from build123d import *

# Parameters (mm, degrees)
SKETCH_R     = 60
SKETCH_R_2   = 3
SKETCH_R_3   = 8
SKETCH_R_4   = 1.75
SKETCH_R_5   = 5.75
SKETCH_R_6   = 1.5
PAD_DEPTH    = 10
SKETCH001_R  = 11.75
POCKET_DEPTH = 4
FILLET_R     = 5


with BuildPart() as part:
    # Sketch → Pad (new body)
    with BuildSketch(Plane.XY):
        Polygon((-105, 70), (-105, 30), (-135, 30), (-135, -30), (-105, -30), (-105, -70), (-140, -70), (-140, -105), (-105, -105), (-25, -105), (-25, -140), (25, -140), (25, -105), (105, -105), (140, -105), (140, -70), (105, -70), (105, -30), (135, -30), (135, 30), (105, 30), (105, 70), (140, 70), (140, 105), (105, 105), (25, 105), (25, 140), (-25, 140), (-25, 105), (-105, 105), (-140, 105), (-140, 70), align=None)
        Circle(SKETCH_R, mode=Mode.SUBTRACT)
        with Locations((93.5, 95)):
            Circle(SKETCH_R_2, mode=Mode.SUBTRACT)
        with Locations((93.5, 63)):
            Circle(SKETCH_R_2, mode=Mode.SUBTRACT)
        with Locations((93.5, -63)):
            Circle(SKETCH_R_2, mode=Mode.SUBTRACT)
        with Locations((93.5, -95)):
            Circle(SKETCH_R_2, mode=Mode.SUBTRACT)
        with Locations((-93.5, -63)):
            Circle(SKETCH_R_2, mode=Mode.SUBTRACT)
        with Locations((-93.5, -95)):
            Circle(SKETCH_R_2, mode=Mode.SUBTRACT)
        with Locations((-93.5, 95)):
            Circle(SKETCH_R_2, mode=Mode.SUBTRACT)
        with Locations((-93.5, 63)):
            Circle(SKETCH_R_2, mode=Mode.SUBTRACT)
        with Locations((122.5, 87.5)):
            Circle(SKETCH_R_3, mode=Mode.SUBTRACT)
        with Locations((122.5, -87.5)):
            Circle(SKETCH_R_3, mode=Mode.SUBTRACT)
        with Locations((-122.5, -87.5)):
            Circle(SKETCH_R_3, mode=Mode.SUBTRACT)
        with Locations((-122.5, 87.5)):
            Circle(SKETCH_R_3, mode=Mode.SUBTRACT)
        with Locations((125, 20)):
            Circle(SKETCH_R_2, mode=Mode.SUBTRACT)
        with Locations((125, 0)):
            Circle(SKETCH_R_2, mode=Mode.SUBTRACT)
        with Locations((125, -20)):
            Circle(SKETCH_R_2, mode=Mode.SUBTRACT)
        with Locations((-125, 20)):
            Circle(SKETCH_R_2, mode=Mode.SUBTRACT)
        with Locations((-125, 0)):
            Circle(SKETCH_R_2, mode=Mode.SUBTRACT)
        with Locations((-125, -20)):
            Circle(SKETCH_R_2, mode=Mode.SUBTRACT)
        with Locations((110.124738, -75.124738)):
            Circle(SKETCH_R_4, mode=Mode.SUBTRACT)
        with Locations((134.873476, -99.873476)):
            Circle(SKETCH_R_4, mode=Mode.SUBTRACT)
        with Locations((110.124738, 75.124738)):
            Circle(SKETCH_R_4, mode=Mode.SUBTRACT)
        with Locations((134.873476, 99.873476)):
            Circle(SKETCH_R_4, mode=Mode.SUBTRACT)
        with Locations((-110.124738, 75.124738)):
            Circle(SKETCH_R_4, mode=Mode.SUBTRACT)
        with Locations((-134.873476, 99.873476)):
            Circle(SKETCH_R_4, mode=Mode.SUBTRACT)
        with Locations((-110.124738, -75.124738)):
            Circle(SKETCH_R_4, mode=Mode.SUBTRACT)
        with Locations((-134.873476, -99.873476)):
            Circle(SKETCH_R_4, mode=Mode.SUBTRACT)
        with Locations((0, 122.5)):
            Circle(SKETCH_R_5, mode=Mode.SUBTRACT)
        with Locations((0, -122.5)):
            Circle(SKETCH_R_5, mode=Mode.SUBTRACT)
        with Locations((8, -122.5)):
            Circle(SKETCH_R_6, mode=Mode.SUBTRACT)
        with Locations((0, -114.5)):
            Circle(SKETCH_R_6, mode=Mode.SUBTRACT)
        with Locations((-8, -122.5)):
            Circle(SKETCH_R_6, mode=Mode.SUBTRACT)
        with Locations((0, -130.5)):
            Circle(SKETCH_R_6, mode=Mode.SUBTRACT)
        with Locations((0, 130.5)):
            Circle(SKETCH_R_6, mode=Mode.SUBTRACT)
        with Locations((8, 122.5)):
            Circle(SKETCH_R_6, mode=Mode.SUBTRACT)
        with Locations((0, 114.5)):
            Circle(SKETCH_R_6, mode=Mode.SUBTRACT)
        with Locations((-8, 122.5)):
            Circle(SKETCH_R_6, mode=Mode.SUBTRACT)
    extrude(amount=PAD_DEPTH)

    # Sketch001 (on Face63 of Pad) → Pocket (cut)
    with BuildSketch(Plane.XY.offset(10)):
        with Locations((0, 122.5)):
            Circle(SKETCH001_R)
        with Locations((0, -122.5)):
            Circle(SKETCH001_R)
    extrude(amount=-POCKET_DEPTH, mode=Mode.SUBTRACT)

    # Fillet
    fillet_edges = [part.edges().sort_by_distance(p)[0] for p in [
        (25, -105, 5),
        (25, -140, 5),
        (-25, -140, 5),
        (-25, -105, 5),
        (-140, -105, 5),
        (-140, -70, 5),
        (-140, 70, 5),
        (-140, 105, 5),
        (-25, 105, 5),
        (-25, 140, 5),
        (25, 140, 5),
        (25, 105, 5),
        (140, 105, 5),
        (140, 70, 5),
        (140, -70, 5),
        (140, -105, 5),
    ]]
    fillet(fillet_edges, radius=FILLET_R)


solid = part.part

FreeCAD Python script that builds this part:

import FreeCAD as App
import Part
import Sketcher
from FreeCAD import Vector


def edges_at(feature, points):
    """Names of the edges that pass closest to the given points."""
    edges = feature.Shape.Edges
    near = lambda p: min(range(len(edges)), key=lambda i: edges[i].distToShape(Part.Vertex(*p))[0])
    return sorted({f"Edge{near(p) + 1}" for p in points})


def add_polygon(sketch, points):
    """Adds a closed chain of lines whose ends are joined by coincident constraints."""
    first, n = sketch.GeometryCount, len(points)
    for a, b in zip(points, points[1:] + points[:1]):
        sketch.addGeometry(Part.LineSegment(App.Vector(*a, 0), App.Vector(*b, 0)), False)
    for i in range(n):
        sketch.addConstraint(Sketcher.Constraint("Coincident", first + i, 2, first + (i + 1) % n, 1))

doc = App.newDocument("Part")
body = doc.addObject("PartDesign::Body", "Body")

# Sketch on XY plane
sketch1 = body.newObject("Sketcher::SketchObject", "Sketch")
sketch1.AttachmentSupport = (doc.getObject("XY_Plane"), [""])
sketch1.MapMode = "FlatFace"
add_polygon(sketch1, [(-105, 70), (-105, 30), (-135, 30), (-135, -30), (-105, -30), (-105, -70), (-140, -70), (-140, -105), (-25, -105), (-25, -140), (25, -140), (25, -105), (140, -105), (140, -70), (105, -70), (105, -30), (135, -30), (135, 30), (105, 30), (105, 70), (140, 70), (140, 105), (25, 105), (25, 140), (-25, 140), (-25, 105), (-140, 105), (-140, 70)])  # lines 0-27
sketch1.addGeometry(Part.Circle(Vector(-134.9, -99.9, 0), Vector(0, 0, 1), 1.8), False)  # 28
sketch1.addGeometry(Part.Circle(Vector(-122.5, -87.5, 0), Vector(0, 0, 1), 8), False)  # 29
sketch1.addGeometry(Part.Circle(Vector(-110.1, -75.1, 0), Vector(0, 0, 1), 1.8), False)  # 30
sketch1.addGeometry(Part.Circle(Vector(-93.5, -95, 0), Vector(0, 0, 1), 3), False)  # 31
sketch1.addGeometry(Part.Circle(Vector(-8, -122.5, 0), Vector(0, 0, 1), 1.5), False)  # 32
sketch1.addGeometry(Part.Circle(Vector(-93.5, -63, 0), Vector(0, 0, 1), 3), False)  # 33
sketch1.addGeometry(Part.Circle(Vector(-125, -20, 0), Vector(0, 0, 1), 3), False)  # 34
sketch1.addGeometry(Part.Circle(Vector(0, -130.5, 0), Vector(0, 0, 1), 1.5), False)  # 35
sketch1.addGeometry(Part.Circle(Vector(0, -122.5, 0), Vector(0, 0, 1), 5.8), False)  # 36
sketch1.addGeometry(Part.Circle(Vector(8, -122.5, 0), Vector(0, 0, 1), 1.5), False)  # 37
sketch1.addGeometry(Part.Circle(Vector(0, -114.5, 0), Vector(0, 0, 1), 1.5), False)  # 38
sketch1.addGeometry(Part.Circle(Vector(134.9, -99.9, 0), Vector(0, 0, 1), 1.8), False)  # 39
sketch1.addGeometry(Part.Circle(Vector(93.5, -95, 0), Vector(0, 0, 1), 3), False)  # 40
sketch1.addGeometry(Part.Circle(Vector(122.5, -87.5, 0), Vector(0, 0, 1), 8), False)  # 41
sketch1.addGeometry(Part.Circle(Vector(110.1, -75.1, 0), Vector(0, 0, 1), 1.8), False)  # 42
sketch1.addGeometry(Part.Circle(Vector(93.5, -63, 0), Vector(0, 0, 1), 3), False)  # 43
sketch1.addGeometry(Part.Circle(Vector(125, -20, 0), Vector(0, 0, 1), 3), False)  # 44
sketch1.addGeometry(Part.Circle(Vector(-125, 0, 0), Vector(0, 0, 1), 3), False)  # 45
sketch1.addGeometry(Part.Circle(Vector(-125, 20, 0), Vector(0, 0, 1), 3), False)  # 46
sketch1.addGeometry(Part.Circle(Vector(-93.5, 63, 0), Vector(0, 0, 1), 3), False)  # 47
sketch1.addGeometry(Part.Circle(Vector(-110.1, 75.1, 0), Vector(0, 0, 1), 1.8), False)  # 48
sketch1.addGeometry(Part.Circle(Vector(-122.5, 87.5, 0), Vector(0, 0, 1), 8), False)  # 49
sketch1.addGeometry(Part.Circle(Vector(-93.5, 95, 0), Vector(0, 0, 1), 3), False)  # 50
sketch1.addGeometry(Part.Circle(Vector(-134.9, 99.9, 0), Vector(0, 0, 1), 1.8), False)  # 51
sketch1.addGeometry(Part.Circle(Vector(-8, 122.5, 0), Vector(0, 0, 1), 1.5), False)  # 52
sketch1.addGeometry(Part.Circle(Vector(0, 0, 0), Vector(0, 0, 1), 60), False)  # 53
sketch1.addGeometry(Part.Circle(Vector(125, 0, 0), Vector(0, 0, 1), 3), False)  # 54
sketch1.addGeometry(Part.Circle(Vector(125, 20, 0), Vector(0, 0, 1), 3), False)  # 55
sketch1.addGeometry(Part.Circle(Vector(93.5, 63, 0), Vector(0, 0, 1), 3), False)  # 56
sketch1.addGeometry(Part.Circle(Vector(0, 114.5, 0), Vector(0, 0, 1), 1.5), False)  # 57
sketch1.addGeometry(Part.Circle(Vector(0, 122.5, 0), Vector(0, 0, 1), 5.8), False)  # 58
sketch1.addGeometry(Part.Circle(Vector(8, 122.5, 0), Vector(0, 0, 1), 1.5), False)  # 59
sketch1.addGeometry(Part.Circle(Vector(0, 130.5, 0), Vector(0, 0, 1), 1.5), False)  # 60
sketch1.addGeometry(Part.Circle(Vector(93.5, 95, 0), Vector(0, 0, 1), 3), False)  # 61
sketch1.addGeometry(Part.Circle(Vector(110.1, 75.1, 0), Vector(0, 0, 1), 1.8), False)  # 62
sketch1.addGeometry(Part.Circle(Vector(122.5, 87.5, 0), Vector(0, 0, 1), 8), False)  # 63
sketch1.addGeometry(Part.Circle(Vector(134.9, 99.9, 0), Vector(0, 0, 1), 1.8), False)  # 64
sketch1.addConstraint(Sketcher.Constraint("Vertical", 0))
sketch1.addConstraint(Sketcher.Constraint("Horizontal", 1))
sketch1.addConstraint(Sketcher.Constraint("Vertical", 2))
sketch1.addConstraint(Sketcher.Constraint("Horizontal", 3))
sketch1.addConstraint(Sketcher.Constraint("Vertical", 4))
sketch1.addConstraint(Sketcher.Constraint("Horizontal", 5))
sketch1.addConstraint(Sketcher.Constraint("Vertical", 6))
sketch1.addConstraint(Sketcher.Constraint("Horizontal", 7))
sketch1.addConstraint(Sketcher.Constraint("Vertical", 8))
sketch1.addConstraint(Sketcher.Constraint("Horizontal", 9))
sketch1.addConstraint(Sketcher.Constraint("Vertical", 10))
sketch1.addConstraint(Sketcher.Constraint("Horizontal", 11))
sketch1.addConstraint(Sketcher.Constraint("Vertical", 12))
sketch1.addConstraint(Sketcher.Constraint("Horizontal", 13))
sketch1.addConstraint(Sketcher.Constraint("Vertical", 14))
sketch1.addConstraint(Sketcher.Constraint("Horizontal", 15))
sketch1.addConstraint(Sketcher.Constraint("Vertical", 16))
sketch1.addConstraint(Sketcher.Constraint("Horizontal", 17))
sketch1.addConstraint(Sketcher.Constraint("Vertical", 18))
sketch1.addConstraint(Sketcher.Constraint("Horizontal", 19))
sketch1.addConstraint(Sketcher.Constraint("Vertical", 20))
sketch1.addConstraint(Sketcher.Constraint("Horizontal", 21))
sketch1.addConstraint(Sketcher.Constraint("Vertical", 22))
sketch1.addConstraint(Sketcher.Constraint("Horizontal", 23))
sketch1.addConstraint(Sketcher.Constraint("Vertical", 24))
sketch1.addConstraint(Sketcher.Constraint("Horizontal", 25))
sketch1.addConstraint(Sketcher.Constraint("Vertical", 26))
sketch1.addConstraint(Sketcher.Constraint("Horizontal", 27))
sketch1.addConstraint(Sketcher.Constraint("Coincident", 53, 3, -1, 1))
sketch1.addConstraint(Sketcher.Constraint("Equal", 28, 30))
sketch1.addConstraint(Sketcher.Constraint("Equal", 31, 33))
sketch1.addConstraint(Sketcher.Constraint("Equal", 33, 34))
sketch1.addConstraint(Sketcher.Constraint("Equal", 32, 35))
sketch1.addConstraint(Sketcher.Constraint("Equal", 35, 37))
sketch1.addConstraint(Sketcher.Constraint("Equal", 37, 38))
sketch1.addConstraint(Sketcher.Constraint("Equal", 30, 39))
sketch1.addConstraint(Sketcher.Constraint("Equal", 34, 40))
sketch1.addConstraint(Sketcher.Constraint("Equal", 29, 41))
sketch1.addConstraint(Sketcher.Constraint("Equal", 39, 42))
sketch1.addConstraint(Sketcher.Constraint("Equal", 40, 43))
sketch1.addConstraint(Sketcher.Constraint("Equal", 43, 44))
sketch1.addConstraint(Sketcher.Constraint("Equal", 44, 45))
sketch1.addConstraint(Sketcher.Constraint("Equal", 45, 46))
sketch1.addConstraint(Sketcher.Constraint("Equal", 46, 47))
sketch1.addConstraint(Sketcher.Constraint("Equal", 42, 48))
sketch1.addConstraint(Sketcher.Constraint("Equal", 41, 49))
sketch1.addConstraint(Sketcher.Constraint("Equal", 47, 50))
sketch1.addConstraint(Sketcher.Constraint("Equal", 48, 51))
sketch1.addConstraint(Sketcher.Constraint("Equal", 38, 52))
sketch1.addConstraint(Sketcher.Constraint("Equal", 50, 54))
sketch1.addConstraint(Sketcher.Constraint("Equal", 54, 55))
sketch1.addConstraint(Sketcher.Constraint("Equal", 55, 56))
sketch1.addConstraint(Sketcher.Constraint("Equal", 52, 57))
sketch1.addConstraint(Sketcher.Constraint("Equal", 36, 58))
sketch1.addConstraint(Sketcher.Constraint("Equal", 57, 59))
sketch1.addConstraint(Sketcher.Constraint("Equal", 59, 60))
sketch1.addConstraint(Sketcher.Constraint("Equal", 56, 61))
sketch1.addConstraint(Sketcher.Constraint("Equal", 51, 62))
sketch1.addConstraint(Sketcher.Constraint("Equal", 49, 63))
sketch1.addConstraint(Sketcher.Constraint("Equal", 62, 64))
sketch1.addConstraint(Sketcher.Constraint("Symmetric", 44, 3, 46, 3, -1, 1))
sketch1.addConstraint(Sketcher.Constraint("Symmetric", 43, 3, 47, 3, -1, 1))
sketch1.addConstraint(Sketcher.Constraint("Symmetric", 42, 3, 48, 3, -1, 1))
sketch1.addConstraint(Sketcher.Constraint("Symmetric", 41, 3, 49, 3, -1, 1))
sketch1.addConstraint(Sketcher.Constraint("Symmetric", 40, 3, 50, 3, -1, 1))
sketch1.addConstraint(Sketcher.Constraint("Symmetric", 39, 3, 51, 3, -1, 1))
sketch1.addConstraint(Sketcher.Constraint("Symmetric", 37, 3, 52, 3, -1, 1))
sketch1.addConstraint(Sketcher.Constraint("Symmetric", 45, 3, 54, 3, -1, 1))
sketch1.addConstraint(Sketcher.Constraint("Symmetric", 34, 3, 55, 3, -1, 1))
sketch1.addConstraint(Sketcher.Constraint("Symmetric", 33, 3, 56, 3, -1, 1))
sketch1.addConstraint(Sketcher.Constraint("Symmetric", 38, 3, 57, 3, -1, 1))
sketch1.addConstraint(Sketcher.Constraint("Symmetric", 36, 3, 58, 3, -1, 1))
sketch1.addConstraint(Sketcher.Constraint("Symmetric", 32, 3, 59, 3, -1, 1))
sketch1.addConstraint(Sketcher.Constraint("Symmetric", 35, 3, 60, 3, -1, 1))
sketch1.addConstraint(Sketcher.Constraint("Symmetric", 31, 3, 61, 3, -1, 1))
sketch1.addConstraint(Sketcher.Constraint("Symmetric", 30, 3, 62, 3, -1, 1))
sketch1.addConstraint(Sketcher.Constraint("Symmetric", 29, 3, 63, 3, -1, 1))
sketch1.addConstraint(Sketcher.Constraint("Symmetric", 28, 3, 64, 3, -1, 1))
sketch1.addConstraint(Sketcher.Constraint("Symmetric", 0, 2, 14, 2, -1, 1))
sketch1.addConstraint(Sketcher.Constraint("Symmetric", 2, 2, 16, 2, -1, 1))
sketch1.addConstraint(Sketcher.Constraint("Symmetric", 4, 2, 18, 2, -1, 1))
sketch1.addConstraint(Sketcher.Constraint("Symmetric", 6, 2, 20, 2, -1, 1))
sketch1.addConstraint(Sketcher.Constraint("Symmetric", 8, 2, 22, 2, -1, 1))
sketch1.addConstraint(Sketcher.Constraint("Symmetric", 10, 2, 24, 2, -1, 1))
sketch1.addConstraint(Sketcher.Constraint("Symmetric", 12, 2, 26, 2, -1, 1))
sketch1.addConstraint(Sketcher.Constraint("Symmetric", 32, 3, 37, 3, -2))
sketch1.addConstraint(Sketcher.Constraint("Symmetric", 28, 3, 39, 3, -2))
sketch1.addConstraint(Sketcher.Constraint("Symmetric", 31, 3, 40, 3, -2))
sketch1.addConstraint(Sketcher.Constraint("Symmetric", 29, 3, 41, 3, -2))
sketch1.addConstraint(Sketcher.Constraint("Symmetric", 30, 3, 42, 3, -2))
sketch1.addConstraint(Sketcher.Constraint("Symmetric", 33, 3, 43, 3, -2))
sketch1.addConstraint(Sketcher.Constraint("Symmetric", 34, 3, 44, 3, -2))
sketch1.addConstraint(Sketcher.Constraint("Symmetric", 7, 2, 10, 2, -2))
sketch1.addConstraint(Sketcher.Constraint("Symmetric", 5, 2, 12, 2, -2))
sketch1.addConstraint(Sketcher.Constraint("Symmetric", 3, 2, 14, 2, -2))
sketch1.addConstraint(Sketcher.Constraint("PointOnObject", 35, 3, -2))
sketch1.addConstraint(Sketcher.Constraint("PointOnObject", 36, 3, -2))
sketch1.addConstraint(Sketcher.Constraint("PointOnObject", 38, 3, -2))
sketch1.addConstraint(Sketcher.Constraint("PointOnObject", 45, 3, -1))
sketch1.addConstraint(Sketcher.Constraint("Horizontal", 32, 3, 36, 3))
sketch1.addConstraint(Sketcher.Constraint("Vertical", 31, 3, 33, 3))
sketch1.addConstraint(Sketcher.Constraint("Vertical", 34, 3, 45, 3))
sketch1.addConstraint(Sketcher.Constraint("Equal", 27, 6))
sketch1.addConstraint(Sketcher.Constraint("Equal", 6, 8))
sketch1.addConstraint(Sketcher.Constraint("Diameter", 29, 16.0))
sketch1.addConstraint(Sketcher.Constraint("Diameter", 31, 6.0))
sketch1.addConstraint(Sketcher.Constraint("Diameter", 32, 3.0))
sketch1.addConstraint(Sketcher.Constraint("Diameter", 53, 120.0))
sketch1.addConstraint(Sketcher.Constraint("Diameter", 28, 3.5))
sketch1.addConstraint(Sketcher.Constraint("Diameter", 36, 11.5))
sketch1.addConstraint(Sketcher.Constraint("DistanceX", 1, 2, 1, 1, 30.0))
sketch1.addConstraint(Sketcher.Constraint("DistanceX", 5, 2, 5, 1, 35.0))
sketch1.addConstraint(Sketcher.Constraint("DistanceX", 7, 1, 7, 2, 115.0))
sketch1.addConstraint(Sketcher.Constraint("DistanceX", 9, 1, 9, 2, 50.0))
sketch1.addConstraint(Sketcher.Constraint("DistanceY", 0, 2, 0, 1, 40.0))
sketch1.addConstraint(Sketcher.Constraint("DistanceY", 2, 2, 2, 1, 60.0))
sketch1.addConstraint(Sketcher.Constraint("DistanceY", 31, 3, -1, 1, 95.0))
sketch1.addConstraint(Sketcher.Constraint("DistanceX", 32, 3, -1, 1, 8.0))
sketch1.addConstraint(Sketcher.Constraint("DistanceY", 33, 3, -1, 1, 63.0))
sketch1.addConstraint(Sketcher.Constraint("DistanceX", 34, 3, -1, 1, 125.0))
sketch1.addConstraint(Sketcher.Constraint("DistanceY", 34, 3, -1, 1, 20.0))
sketch1.addConstraint(Sketcher.Constraint("DistanceX", 29, 3, -1, 1, 122.5))
sketch1.addConstraint(Sketcher.Constraint("DistanceY", 29, 3, -1, 1, 87.5))
sketch1.addConstraint(Sketcher.Constraint("DistanceX", 31, 3, -1, 1, 93.5))
sketch1.addConstraint(Sketcher.Constraint("DistanceY", 32, 3, -1, 1, 122.5))
sketch1.addConstraint(Sketcher.Constraint("DistanceY", 35, 3, -1, 1, 130.5))
sketch1.addConstraint(Sketcher.Constraint("DistanceY", 38, 3, -1, 1, 114.5))
sketch1.addConstraint(Sketcher.Constraint("DistanceX", 28, 3, -1, 1, 134.873476))
sketch1.addConstraint(Sketcher.Constraint("DistanceY", 28, 3, -1, 1, 99.873476))
sketch1.addConstraint(Sketcher.Constraint("DistanceX", 30, 3, -1, 1, 110.124738))
sketch1.addConstraint(Sketcher.Constraint("DistanceY", 30, 3, -1, 1, 75.124738))
pad1 = body.newObject("PartDesign::Pad", "Pad")
pad1.Profile = sketch1
pad1.Length = 10

# Sketch on XY plane
sketch2 = body.newObject("Sketcher::SketchObject", "Sketch001")
sketch2.AttachmentSupport = (doc.getObject("XY_Plane"), [""])
sketch2.MapMode = "FlatFace"
sketch2.AttachmentOffset = App.Placement(Vector(0, 0, 10), App.Rotation())
sketch2.addGeometry(Part.Circle(Vector(0, 122, 0), Vector(0, 0, 1), 12), False)
sketch2.addGeometry(Part.Circle(Vector(0, -122, 0), Vector(0, 0, 1), 12), False)
sketch2.addConstraint(Sketcher.Constraint("Equal", 0, 1))
sketch2.addConstraint(Sketcher.Constraint("Symmetric", 0, 3, 1, 3, -1, 1))
sketch2.addConstraint(Sketcher.Constraint("PointOnObject", 0, 3, -2))
sketch2.addConstraint(Sketcher.Constraint("Diameter", 0, 23.5))
sketch2.addConstraint(Sketcher.Constraint("DistanceY", 1, 3, 0, 3, 245.0))
pocket1 = body.newObject("PartDesign::Pocket", "Pocket")
pocket1.Profile = sketch2
pocket1.Length = 4
doc.recompute()

fillet = body.newObject("PartDesign::Fillet", "Fillet")
fillet.Base = (pocket1, edges_at(pocket1, [
    (25, -105, 5),
    (25, -140, 5),
    (-25, -140, 5),
    (-25, -105, 5),
    (-140, -105, 5),
    (-140, -70, 5),
    (-140, 70, 5),
    (-140, 105, 5),
    (-25, 105, 5),
    (-25, 140, 5),
    (25, 140, 5),
    (25, 105, 5),
    (140, 105, 5),
    (140, 70, 5),
    (140, -70, 5),
    (140, -105, 5),
]))
fillet.Radius = 5

doc.recompute()
